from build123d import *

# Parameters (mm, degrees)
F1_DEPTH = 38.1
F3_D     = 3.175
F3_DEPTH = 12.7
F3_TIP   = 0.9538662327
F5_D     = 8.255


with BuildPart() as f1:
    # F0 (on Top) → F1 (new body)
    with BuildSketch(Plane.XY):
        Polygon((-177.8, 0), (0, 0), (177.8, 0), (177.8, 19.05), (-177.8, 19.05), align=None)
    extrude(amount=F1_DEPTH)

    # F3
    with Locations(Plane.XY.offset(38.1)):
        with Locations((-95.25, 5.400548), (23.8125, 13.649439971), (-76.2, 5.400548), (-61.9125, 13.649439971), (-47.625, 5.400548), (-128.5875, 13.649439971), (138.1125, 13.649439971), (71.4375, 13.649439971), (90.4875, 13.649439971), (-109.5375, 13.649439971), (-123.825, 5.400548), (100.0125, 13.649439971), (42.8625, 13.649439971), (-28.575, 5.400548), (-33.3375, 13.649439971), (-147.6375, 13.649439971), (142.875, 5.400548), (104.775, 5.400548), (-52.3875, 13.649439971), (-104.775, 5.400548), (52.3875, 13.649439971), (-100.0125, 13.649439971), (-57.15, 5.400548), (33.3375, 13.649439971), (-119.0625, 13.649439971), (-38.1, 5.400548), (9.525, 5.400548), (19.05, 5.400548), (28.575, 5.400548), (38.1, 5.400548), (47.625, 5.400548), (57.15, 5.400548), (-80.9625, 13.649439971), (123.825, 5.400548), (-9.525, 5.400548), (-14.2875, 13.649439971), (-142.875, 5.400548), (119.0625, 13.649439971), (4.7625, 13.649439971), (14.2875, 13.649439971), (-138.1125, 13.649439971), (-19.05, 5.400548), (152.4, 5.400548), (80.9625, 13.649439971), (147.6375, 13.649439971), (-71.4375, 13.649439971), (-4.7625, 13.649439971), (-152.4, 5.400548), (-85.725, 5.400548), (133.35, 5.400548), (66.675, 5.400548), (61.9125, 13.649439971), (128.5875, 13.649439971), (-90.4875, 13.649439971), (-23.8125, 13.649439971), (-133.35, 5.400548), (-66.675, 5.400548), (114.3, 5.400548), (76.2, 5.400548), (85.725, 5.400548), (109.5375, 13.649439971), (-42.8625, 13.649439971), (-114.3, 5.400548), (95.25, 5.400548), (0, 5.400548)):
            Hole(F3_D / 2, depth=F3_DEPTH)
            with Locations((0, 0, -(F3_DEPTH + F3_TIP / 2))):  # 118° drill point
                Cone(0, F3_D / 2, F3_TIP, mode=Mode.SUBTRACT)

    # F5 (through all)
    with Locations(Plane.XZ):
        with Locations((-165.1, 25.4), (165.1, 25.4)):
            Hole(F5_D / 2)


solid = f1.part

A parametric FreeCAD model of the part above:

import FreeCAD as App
import Part
import Sketcher
from FreeCAD import Vector
Q = App.Units.Quantity

doc = App.newDocument("Part")
body = doc.addObject("PartDesign::Body", "Body")

# Sketch on XY plane
sketch1 = body.newObject("Sketcher::SketchObject", "Sketch")
sketch1.AttachmentSupport = (doc.getObject("XY_Plane"), [""])
sketch1.MapMode = "FlatFace"
sketch1.addGeometry([
    Part.LineSegment(Vector(-177.8, 0, 0), Vector(177.8, 0, 0)),
    Part.LineSegment(Vector(177.8, 0, 0), Vector(177.8, 19.05, 0)),
    Part.LineSegment(Vector(177.8, 19.05, 0), Vector(-177.8, 19.05, 0)),
    Part.LineSegment(Vector(-177.8, 19.05, 0), Vector(-177.8, 0, 0)),
], False)
sketch1.addConstraint([
    Sketcher.Constraint("Coincident", 0, 2, 1, 1),
    Sketcher.Constraint("Coincident", 1, 2, 2, 1),
    Sketcher.Constraint("Coincident", 2, 2, 3, 1),
    Sketcher.Constraint("Coincident", 3, 2, 0, 1),
    Sketcher.Constraint("Horizontal", 0),
    Sketcher.Constraint("Vertical", 1),
    Sketcher.Constraint("Horizontal", 2),
    Sketcher.Constraint("Vertical", 3),
    Sketcher.Constraint("Symmetric", 0, 2, 3, 2, -1, 1),
    Sketcher.Constraint("DistanceX", 0, 1, 0, 2, Q("14 in")),
    Sketcher.Constraint("DistanceY", 1, 1, 1, 2, Q("0.75 in")),
])
pad1 = body.newObject("PartDesign::Pad", "Pad")
pad1.Profile = sketch1
pad1.Length = Q("1.5 in")

# Sketch on XY plane
sketch2 = body.newObject("Sketcher::SketchObject", "Sketch001")
sketch2.AttachmentSupport = (doc.getObject("XY_Plane"), [""])
sketch2.MapMode = "FlatFace"
sketch2.AttachmentOffset = App.Placement(Vector(0, 0, 1.5 * 25.4), App.Rotation())
sketch2.addGeometry([
    Part.Circle(Vector(-95.25, 5.400548, 0), Vector(0, 0, 1), 1.5875),  # 0
    Part.Circle(Vector(23.8125, 13.64944, 0), Vector(0, 0, 1), 1.5875),  # 1
    Part.Circle(Vector(-76.2, 5.400548, 0), Vector(0, 0, 1), 1.5875),  # 2
    Part.Circle(Vector(-61.9125, 13.64944, 0), Vector(0, 0, 1), 1.5875),  # 3
    Part.Circle(Vector(-47.625, 5.400548, 0), Vector(0, 0, 1), 1.5875),  # 4
    Part.Circle(Vector(-128.5875, 13.64944, 0), Vector(0, 0, 1), 1.5875),  # 5
    Part.Circle(Vector(138.1125, 13.64944, 0), Vector(0, 0, 1), 1.5875),  # 6
    Part.Circle(Vector(71.4375, 13.64944, 0), Vector(0, 0, 1), 1.5875),  # 7
    Part.Circle(Vector(90.4875, 13.64944, 0), Vector(0, 0, 1), 1.5875),  # 8
    Part.Circle(Vector(-109.5375, 13.64944, 0), Vector(0, 0, 1), 1.5875),  # 9
    Part.Circle(Vector(-123.825, 5.400548, 0), Vector(0, 0, 1), 1.5875),  # 10
    Part.Circle(Vector(100.0125, 13.64944, 0), Vector(0, 0, 1), 1.5875),  # 11
    Part.Circle(Vector(42.8625, 13.64944, 0), Vector(0, 0, 1), 1.5875),  # 12
    Part.Circle(Vector(-28.575, 5.400548, 0), Vector(0, 0, 1), 1.5875),  # 13
    Part.Circle(Vector(-33.3375, 13.64944, 0), Vector(0, 0, 1), 1.5875),  # 14
    Part.Circle(Vector(-147.6375, 13.64944, 0), Vector(0, 0, 1), 1.5875),  # 15
    Part.Circle(Vector(142.875, 5.400548, 0), Vector(0, 0, 1), 1.5875),  # 16
    Part.Circle(Vector(104.775, 5.400548, 0), Vector(0, 0, 1), 1.5875),  # 17
    Part.Circle(Vector(-52.3875, 13.64944, 0), Vector(0, 0, 1), 1.5875),  # 18
    Part.Circle(Vector(-104.775, 5.400548, 0), Vector(0, 0, 1), 1.5875),  # 19
    Part.Circle(Vector(52.3875, 13.64944, 0), Vector(0, 0, 1), 1.5875),  # 20
    Part.Circle(Vector(-100.0125, 13.64944, 0), Vector(0, 0, 1), 1.5875),  # 21
    Part.Circle(Vector(-57.15, 5.400548, 0), Vector(0, 0, 1), 1.5875),  # 22
    Part.Circle(Vector(33.3375, 13.64944, 0), Vector(0, 0, 1), 1.5875),  # 23
    Part.Circle(Vector(-119.0625, 13.64944, 0), Vector(0, 0, 1), 1.5875),  # 24
    Part.Circle(Vector(-38.1, 5.400548, 0), Vector(0, 0, 1), 1.5875),  # 25
    Part.Circle(Vector(9.525, 5.400548, 0), Vector(0, 0, 1), 1.5875),  # 26
    Part.Circle(Vector(19.05, 5.400548, 0), Vector(0, 0, 1), 1.5875),  # 27
    Part.Circle(Vector(28.575, 5.400548, 0), Vector(0, 0, 1), 1.5875),  # 28
    Part.Circle(Vector(38.1, 5.400548, 0), Vector(0, 0, 1), 1.5875),  # 29
    Part.Circle(Vector(47.625, 5.400548, 0), Vector(0, 0, 1), 1.5875),  # 30
    Part.Circle(Vector(57.15, 5.400548, 0), Vector(0, 0, 1), 1.5875),  # 31
    Part.Circle(Vector(-80.9625, 13.64944, 0), Vector(0, 0, 1), 1.5875),  # 32
    Part.Circle(Vector(123.825, 5.400548, 0), Vector(0, 0, 1), 1.5875),  # 33
    Part.Circle(Vector(-9.525, 5.400548, 0), Vector(0, 0, 1), 1.5875),  # 34
    Part.Circle(Vector(-14.2875, 13.64944, 0), Vector(0, 0, 1), 1.5875),  # 35
    Part.Circle(Vector(-142.875, 5.400548, 0), Vector(0, 0, 1), 1.5875),  # 36
    Part.Circle(Vector(119.0625, 13.64944, 0), Vector(0, 0, 1), 1.5875),  # 37
    Part.Circle(Vector(4.7625, 13.64944, 0), Vector(0, 0, 1), 1.5875),  # 38
    Part.Circle(Vector(14.2875, 13.64944, 0), Vector(0, 0, 1), 1.5875),  # 39
    Part.Circle(Vector(-138.1125, 13.64944, 0), Vector(0, 0, 1), 1.5875),  # 40
    Part.Circle(Vector(-19.05, 5.400548, 0), Vector(0, 0, 1), 1.5875),  # 41
    Part.Circle(Vector(152.4, 5.400548, 0), Vector(0, 0, 1), 1.5875),  # 42
    Part.Circle(Vector(80.9625, 13.64944, 0), Vector(0, 0, 1), 1.5875),  # 43
    Part.Circle(Vector(147.6375, 13.64944, 0), Vector(0, 0, 1), 1.5875),  # 44
    Part.Circle(Vector(-71.4375, 13.64944, 0), Vector(0, 0, 1), 1.5875),  # 45
    Part.Circle(Vector(-4.7625, 13.64944, 0), Vector(0, 0, 1), 1.5875),  # 46
    Part.Circle(Vector(-152.4, 5.400548, 0), Vector(0, 0, 1), 1.5875),  # 47
    Part.Circle(Vector(-85.725, 5.400548, 0), Vector(0, 0, 1), 1.5875),  # 48
    Part.Circle(Vector(133.35, 5.400548, 0), Vector(0, 0, 1), 1.5875),  # 49
    Part.Circle(Vector(66.675, 5.400548, 0), Vector(0, 0, 1), 1.5875),  # 50
    Part.Circle(Vector(61.9125, 13.64944, 0), Vector(0, 0, 1), 1.5875),  # 51
    Part.Circle(Vector(128.5875, 13.64944, 0), Vector(0, 0, 1), 1.5875),  # 52
    Part.Circle(Vector(-90.4875, 13.64944, 0), Vector(0, 0, 1), 1.5875),  # 53
    Part.Circle(Vector(-23.8125, 13.64944, 0), Vector(0, 0, 1), 1.5875),  # 54
    Part.Circle(Vector(-133.35, 5.400548, 0), Vector(0, 0, 1), 1.5875),  # 55
    Part.Circle(Vector(-66.675, 5.400548, 0), Vector(0, 0, 1), 1.5875),  # 56
    Part.Circle(Vector(114.3, 5.400548, 0), Vector(0, 0, 1), 1.5875),  # 57
    Part.Circle(Vector(76.2, 5.400548, 0), Vector(0, 0, 1), 1.5875),  # 58
    Part.Circle(Vector(85.725, 5.400548, 0), Vector(0, 0, 1), 1.5875),  # 59
    Part.Circle(Vector(109.5375, 13.64944, 0), Vector(0, 0, 1), 1.5875),  # 60
    Part.Circle(Vector(-42.8625, 13.64944, 0), Vector(0, 0, 1), 1.5875),  # 61
    Part.Circle(Vector(-114.3, 5.400548, 0), Vector(0, 0, 1), 1.5875),  # 62
    Part.Circle(Vector(95.25, 5.400548, 0), Vector(0, 0, 1), 1.5875),  # 63
    Part.Circle(Vector(0, 5.400548, 0), Vector(0, 0, 1), 1.5875),  # 64
], False)
sketch2.addConstraint([
    Sketcher.Constraint("Equal", 0, 1),
    Sketcher.Constraint("Equal", 1, 2),
    Sketcher.Constraint("Equal", 2, 3),
    Sketcher.Constraint("Equal", 3, 4),
    Sketcher.Constraint("Equal", 4, 5),
    Sketcher.Constraint("Equal", 5, 6),
    Sketcher.Constraint("Equal", 6, 7),
    Sketcher.Constraint("Equal", 7, 8),
    Sketcher.Constraint("Equal", 8, 9),
    Sketcher.Constraint("Equal", 9, 10),
    Sketcher.Constraint("Equal", 10, 11),
    Sketcher.Constraint("Equal", 11, 12),
    Sketcher.Constraint("Equal", 12, 13),
    Sketcher.Constraint("Equal", 13, 14),
    Sketcher.Constraint("Equal", 14, 15),
    Sketcher.Constraint("Equal", 15, 16),
    Sketcher.Constraint("Equal", 16, 17),
    Sketcher.Constraint("Equal", 17, 18),
    Sketcher.Constraint("Equal", 18, 19),
    Sketcher.Constraint("Equal", 19, 20),
    Sketcher.Constraint("Equal", 20, 21),
    Sketcher.Constraint("Equal", 21, 22),
    Sketcher.Constraint("Equal", 22, 23),
    Sketcher.Constraint("Equal", 23, 24),
    Sketcher.Constraint("Equal", 24, 25),
    Sketcher.Constraint("Equal", 25, 26),
    Sketcher.Constraint("Equal", 26, 27),
    Sketcher.Constraint("Equal", 27, 28),
    Sketcher.Constraint("Equal", 28, 29),
    Sketcher.Constraint("Equal", 29, 30),
    Sketcher.Constraint("Equal", 30, 31),
    Sketcher.Constraint("Equal", 31, 32),
    Sketcher.Constraint("Equal", 32, 33),
    Sketcher.Constraint("Equal", 33, 34),
    Sketcher.Constraint("Equal", 34, 35),
    Sketcher.Constraint("Equal", 35, 36),
    Sketcher.Constraint("Equal", 36, 37),
    Sketcher.Constraint("Equal", 37, 38),
    Sketcher.Constraint("Equal", 38, 39),
    Sketcher.Constraint("Equal", 39, 40),
    Sketcher.Constraint("Equal", 40, 41),
    Sketcher.Constraint("Equal", 41, 42),
    Sketcher.Constraint("Equal", 42, 43),
    Sketcher.Constraint("Equal", 43, 44),
    Sketcher.Constraint("Equal", 44, 45),
    Sketcher.Constraint("Equal", 45, 46),
    Sketcher.Constraint("Equal", 46, 47),
    Sketcher.Constraint("Equal", 47, 48),
    Sketcher.Constraint("Equal", 48, 49),
    Sketcher.Constraint("Equal", 49, 50),
    Sketcher.Constraint("Equal", 50, 51),
    Sketcher.Constraint("Equal", 51, 52),
    Sketcher.Constraint("Equal", 52, 53),
    Sketcher.Constraint("Equal", 53, 54),
    Sketcher.Constraint("Equal", 54, 55),
    Sketcher.Constraint("Equal", 55, 56),
    Sketcher.Constraint("Equal", 56, 57),
    Sketcher.Constraint("Equal", 57, 58),
    Sketcher.Constraint("Equal", 58, 59),
    Sketcher.Constraint("Equal", 59, 60),
    Sketcher.Constraint("Equal", 60, 61),
    Sketcher.Constraint("Equal", 61, 62),
    Sketcher.Constraint("Equal", 62, 63),
    Sketcher.Constraint("Equal", 63, 64),
    Sketcher.Constraint("Symmetric", 17, 3, 19, 3, -2),
    Sketcher.Constraint("Symmetric", 18, 3, 20, 3, -2),
    Sketcher.Constraint("Symmetric", 11, 3, 21, 3, -2),
    Sketcher.Constraint("Symmetric", 14, 3, 23, 3, -2),
    Sketcher.Constraint("Symmetric", 13, 3, 28, 3, -2),
    Sketcher.Constraint("Symmetric", 25, 3, 29, 3, -2),
    Sketcher.Constraint("Symmetric", 4, 3, 30, 3, -2),
    Sketcher.Constraint("Symmetric", 22, 3, 31, 3, -2),
    Sketcher.Constraint("Symmetric", 10, 3, 33, 3, -2),
    Sketcher.Constraint("Symmetric", 26, 3, 34, 3, -2),
    Sketcher.Constraint("Symmetric", 16, 3, 36, 3, -2),
    Sketcher.Constraint("Symmetric", 24, 3, 37, 3, -2),
    Sketcher.Constraint("Symmetric", 35, 3, 39, 3, -2),
    Sketcher.Constraint("Symmetric", 6, 3, 40, 3, -2),
    Sketcher.Constraint("Symmetric", 27, 3, 41, 3, -2),
    Sketcher.Constraint("Symmetric", 32, 3, 43, 3, -2),
    Sketcher.Constraint("Symmetric", 15, 3, 44, 3, -2),
    Sketcher.Constraint("Symmetric", 7, 3, 45, 3, -2),
    Sketcher.Constraint("Symmetric", 38, 3, 46, 3, -2),
    Sketcher.Constraint("Symmetric", 42, 3, 47, 3, -2),
    Sketcher.Constraint("Symmetric", 3, 3, 51, 3, -2),
    Sketcher.Constraint("Symmetric", 5, 3, 52, 3, -2),
    Sketcher.Constraint("Symmetric", 8, 3, 53, 3, -2),
    Sketcher.Constraint("Symmetric", 1, 3, 54, 3, -2),
    Sketcher.Constraint("Symmetric", 49, 3, 55, 3, -2),
    Sketcher.Constraint("Symmetric", 50, 3, 56, 3, -2),
    Sketcher.Constraint("Symmetric", 2, 3, 58, 3, -2),
    Sketcher.Constraint("Symmetric", 48, 3, 59, 3, -2),
    Sketcher.Constraint("Symmetric", 9, 3, 60, 3, -2),
    Sketcher.Constraint("Symmetric", 12, 3, 61, 3, -2),
    Sketcher.Constraint("Symmetric", 57, 3, 62, 3, -2),
    Sketcher.Constraint("Symmetric", 0, 3, 63, 3, -2),
    Sketcher.Constraint("PointOnObject", 64, 3, -2),
    Sketcher.Constraint("Horizontal", 0, 3, 2, 3),
    Sketcher.Constraint("Horizontal", 1, 3, 3, 3),
    Sketcher.Constraint("Horizontal", 2, 3, 4, 3),
    Sketcher.Constraint("Horizontal", 3, 3, 5, 3),
    Sketcher.Constraint("Horizontal", 5, 3, 6, 3),
    Sketcher.Constraint("Horizontal", 6, 3, 7, 3),
    Sketcher.Constraint("Horizontal", 7, 3, 8, 3),
    Sketcher.Constraint("Horizontal", 8, 3, 9, 3),
    Sketcher.Constraint("Horizontal", 4, 3, 10, 3),
    Sketcher.Constraint("Horizontal", 9, 3, 11, 3),
    Sketcher.Constraint("Horizontal", 11, 3, 12, 3),
    Sketcher.Constraint("Horizontal", 10, 3, 13, 3),
    Sketcher.Constraint("Horizontal", 12, 3, 14, 3),
    Sketcher.Constraint("Horizontal", 14, 3, 15, 3),
    Sketcher.Constraint("Horizontal", 13, 3, 16, 3),
    Sketcher.Constraint("Horizontal", 16, 3, 17, 3),
    Sketcher.Constraint("Horizontal", 15, 3, 18, 3),
    Sketcher.Constraint("Horizontal", 19, 3, 22, 3),
    Sketcher.Constraint("Horizontal", 23, 3, 24, 3),
    Sketcher.Constraint("Horizontal", 22, 3, 25, 3),
    Sketcher.Constraint("Horizontal", 25, 3, 26, 3),
    Sketcher.Constraint("Horizontal", 26, 3, 27, 3),
    Sketcher.Constraint("Horizontal", 24, 3, 32, 3),
    Sketcher.Constraint("Horizontal", 32, 3, 35, 3),
    Sketcher.Constraint("Horizontal", 37, 3, 38, 3),
    Sketcher.Constraint("Horizontal", 41, 3, 42, 3),
    Sketcher.Constraint("Horizontal", 47, 3, 48, 3),
    Sketcher.Constraint("Horizontal", 48, 3, 49, 3),
    Sketcher.Constraint("Horizontal", 49, 3, 50, 3),
    Sketcher.Constraint("Horizontal", 56, 3, 57, 3),
    Sketcher.Constraint("Horizontal", 63, 3, 64, 3),
    Sketcher.Constraint("Diameter", 0, Q("0.125 in")),
    Sketcher.Constraint("DistanceX", 2, 3, -1, 1, Q("3 in")),
    Sketcher.Constraint("DistanceX", -1, 1, 42, 3, Q("6 in")),
    Sketcher.Constraint("DistanceX", 25, 3, -1, 1, Q("1.5 in")),
    Sketcher.Constraint("DistanceX", -1, 1, 57, 3, Q("4.5 in")),
    Sketcher.Constraint("DistanceX", 0, 3, -1, 1, Q("3.75 in")),
    Sketcher.Constraint("DistanceX", 22, 3, -1, 1, Q("2.25 in")),
    Sketcher.Constraint("DistanceX", -1, 1, 27, 3, Q("0.75 in")),
    Sketcher.Constraint("DistanceX", -1, 1, 49, 3, Q("5.25 in")),
    Sketcher.Constraint("DistanceX", -1, 1, 1, 3, Q("0.9375 in")),
    Sketcher.Constraint("DistanceX", 3, 3, -1, 1, Q("2.4375 in")),
    Sketcher.Constraint("DistanceX", 4, 3, -1, 1, Q("1.875 in")),
    Sketcher.Constraint("DistanceX", 5, 3, -1, 1, Q("5.0625 in")),
    Sketcher.Constraint("DistanceX", -1, 1, 6, 3, Q("5.4375 in")),
    Sketcher.Constraint("DistanceX", -1, 1, 7, 3, Q("2.8125 in")),
    Sketcher.Constraint("DistanceX", -1, 1, 8, 3, Q("3.5625 in")),
    Sketcher.Constraint("DistanceX", 9, 3, -1, 1, Q("4.3125 in")),
    Sketcher.Constraint("DistanceX", 10, 3, -1, 1, Q("4.875 in")),
    Sketcher.Constraint("DistanceX", -1, 1, 11, 3, Q("3.9375 in")),
    Sketcher.Constraint("DistanceX", -1, 1, 12, 3, Q("1.6875 in")),
    Sketcher.Constraint("DistanceX", 13, 3, -1, 1, Q("1.125 in")),
    Sketcher.Constraint("DistanceX", 14, 3, -1, 1, Q("1.3125 in")),
    Sketcher.Constraint("DistanceX", 15, 3, -1, 1, Q("5.8125 in")),
    Sketcher.Constraint("DistanceX", -1, 1, 16, 3, Q("5.625 in")),
    Sketcher.Constraint("DistanceX", -1, 1, 17, 3, Q("4.125 in")),
    Sketcher.Constraint("DistanceX", 18, 3, -1, 1, Q("2.0625 in")),
    Sketcher.Constraint("DistanceX", 24, 3, -1, 1, Q("4.6875 in")),
    Sketcher.Constraint("DistanceX", -1, 1, 26, 3, Q("0.375 in")),
    Sketcher.Constraint("DistanceX", 32, 3, -1, 1, Q("3.1875 in")),
    Sketcher.Constraint("DistanceX", 35, 3, -1, 1, Q("0.5625 in")),
    Sketcher.Constraint("DistanceX", -1, 1, 38, 3, Q("0.1875 in")),
    Sketcher.Constraint("DistanceX", 48, 3, -1, 1, Q("3.375 in")),
    Sketcher.Constraint("DistanceX", -1, 1, 50, 3, Q("2.625 in")),
    Sketcher.Constraint("DistanceY", -1, 1, 1, 3, Q("13.64944 mm")),
    Sketcher.Constraint("DistanceY", -1, 1, 0, 3, Q("5.400548 mm")),
])
doc.recompute()
hole = body.newObject("PartDesign::Hole", "Hole")
hole.Profile = sketch2
hole.ThreadType = "None"
hole.Diameter = Q("0.125 in")
hole.DepthType = "Dimension"
hole.Depth = Q("0.5 in")
hole.DrillPoint = "Angled"
hole.DrillPointAngle = 118

# Sketch on XZ plane
sketch3 = body.newObject("Sketcher::SketchObject", "Sketch002")
sketch3.AttachmentSupport = (doc.getObject("XZ_Plane"), [""])
sketch3.MapMode = "FlatFace"
sketch3.addGeometry([
    Part.Circle(Vector(-165.1, 25.4, 0), Vector(0, 0, 1), 4.1275),
    Part.Circle(Vector(165.1, 25.4, 0), Vector(0, 0, 1), 4.1275),
], False)
sketch3.addConstraint([
    Sketcher.Constraint("Equal", 0, 1),
    Sketcher.Constraint("Symmetric", 0, 3, 1, 3, -2),
    Sketcher.Constraint("Diameter", 0, Q("0.325 in")),
    Sketcher.Constraint("DistanceY", -1, 1, 0, 3, Q("1 in")),
    Sketcher.Constraint("DistanceX", 0, 3, 1, 3, Q("13 in")),
])
doc.recompute()
hole2 = body.newObject("PartDesign::Hole", "Hole001")
hole2.Profile = sketch3
hole2.ThreadType = "None"
hole2.Diameter = Q("0.325 in")
hole2.DepthType = "ThroughAll"

doc.recompute()
